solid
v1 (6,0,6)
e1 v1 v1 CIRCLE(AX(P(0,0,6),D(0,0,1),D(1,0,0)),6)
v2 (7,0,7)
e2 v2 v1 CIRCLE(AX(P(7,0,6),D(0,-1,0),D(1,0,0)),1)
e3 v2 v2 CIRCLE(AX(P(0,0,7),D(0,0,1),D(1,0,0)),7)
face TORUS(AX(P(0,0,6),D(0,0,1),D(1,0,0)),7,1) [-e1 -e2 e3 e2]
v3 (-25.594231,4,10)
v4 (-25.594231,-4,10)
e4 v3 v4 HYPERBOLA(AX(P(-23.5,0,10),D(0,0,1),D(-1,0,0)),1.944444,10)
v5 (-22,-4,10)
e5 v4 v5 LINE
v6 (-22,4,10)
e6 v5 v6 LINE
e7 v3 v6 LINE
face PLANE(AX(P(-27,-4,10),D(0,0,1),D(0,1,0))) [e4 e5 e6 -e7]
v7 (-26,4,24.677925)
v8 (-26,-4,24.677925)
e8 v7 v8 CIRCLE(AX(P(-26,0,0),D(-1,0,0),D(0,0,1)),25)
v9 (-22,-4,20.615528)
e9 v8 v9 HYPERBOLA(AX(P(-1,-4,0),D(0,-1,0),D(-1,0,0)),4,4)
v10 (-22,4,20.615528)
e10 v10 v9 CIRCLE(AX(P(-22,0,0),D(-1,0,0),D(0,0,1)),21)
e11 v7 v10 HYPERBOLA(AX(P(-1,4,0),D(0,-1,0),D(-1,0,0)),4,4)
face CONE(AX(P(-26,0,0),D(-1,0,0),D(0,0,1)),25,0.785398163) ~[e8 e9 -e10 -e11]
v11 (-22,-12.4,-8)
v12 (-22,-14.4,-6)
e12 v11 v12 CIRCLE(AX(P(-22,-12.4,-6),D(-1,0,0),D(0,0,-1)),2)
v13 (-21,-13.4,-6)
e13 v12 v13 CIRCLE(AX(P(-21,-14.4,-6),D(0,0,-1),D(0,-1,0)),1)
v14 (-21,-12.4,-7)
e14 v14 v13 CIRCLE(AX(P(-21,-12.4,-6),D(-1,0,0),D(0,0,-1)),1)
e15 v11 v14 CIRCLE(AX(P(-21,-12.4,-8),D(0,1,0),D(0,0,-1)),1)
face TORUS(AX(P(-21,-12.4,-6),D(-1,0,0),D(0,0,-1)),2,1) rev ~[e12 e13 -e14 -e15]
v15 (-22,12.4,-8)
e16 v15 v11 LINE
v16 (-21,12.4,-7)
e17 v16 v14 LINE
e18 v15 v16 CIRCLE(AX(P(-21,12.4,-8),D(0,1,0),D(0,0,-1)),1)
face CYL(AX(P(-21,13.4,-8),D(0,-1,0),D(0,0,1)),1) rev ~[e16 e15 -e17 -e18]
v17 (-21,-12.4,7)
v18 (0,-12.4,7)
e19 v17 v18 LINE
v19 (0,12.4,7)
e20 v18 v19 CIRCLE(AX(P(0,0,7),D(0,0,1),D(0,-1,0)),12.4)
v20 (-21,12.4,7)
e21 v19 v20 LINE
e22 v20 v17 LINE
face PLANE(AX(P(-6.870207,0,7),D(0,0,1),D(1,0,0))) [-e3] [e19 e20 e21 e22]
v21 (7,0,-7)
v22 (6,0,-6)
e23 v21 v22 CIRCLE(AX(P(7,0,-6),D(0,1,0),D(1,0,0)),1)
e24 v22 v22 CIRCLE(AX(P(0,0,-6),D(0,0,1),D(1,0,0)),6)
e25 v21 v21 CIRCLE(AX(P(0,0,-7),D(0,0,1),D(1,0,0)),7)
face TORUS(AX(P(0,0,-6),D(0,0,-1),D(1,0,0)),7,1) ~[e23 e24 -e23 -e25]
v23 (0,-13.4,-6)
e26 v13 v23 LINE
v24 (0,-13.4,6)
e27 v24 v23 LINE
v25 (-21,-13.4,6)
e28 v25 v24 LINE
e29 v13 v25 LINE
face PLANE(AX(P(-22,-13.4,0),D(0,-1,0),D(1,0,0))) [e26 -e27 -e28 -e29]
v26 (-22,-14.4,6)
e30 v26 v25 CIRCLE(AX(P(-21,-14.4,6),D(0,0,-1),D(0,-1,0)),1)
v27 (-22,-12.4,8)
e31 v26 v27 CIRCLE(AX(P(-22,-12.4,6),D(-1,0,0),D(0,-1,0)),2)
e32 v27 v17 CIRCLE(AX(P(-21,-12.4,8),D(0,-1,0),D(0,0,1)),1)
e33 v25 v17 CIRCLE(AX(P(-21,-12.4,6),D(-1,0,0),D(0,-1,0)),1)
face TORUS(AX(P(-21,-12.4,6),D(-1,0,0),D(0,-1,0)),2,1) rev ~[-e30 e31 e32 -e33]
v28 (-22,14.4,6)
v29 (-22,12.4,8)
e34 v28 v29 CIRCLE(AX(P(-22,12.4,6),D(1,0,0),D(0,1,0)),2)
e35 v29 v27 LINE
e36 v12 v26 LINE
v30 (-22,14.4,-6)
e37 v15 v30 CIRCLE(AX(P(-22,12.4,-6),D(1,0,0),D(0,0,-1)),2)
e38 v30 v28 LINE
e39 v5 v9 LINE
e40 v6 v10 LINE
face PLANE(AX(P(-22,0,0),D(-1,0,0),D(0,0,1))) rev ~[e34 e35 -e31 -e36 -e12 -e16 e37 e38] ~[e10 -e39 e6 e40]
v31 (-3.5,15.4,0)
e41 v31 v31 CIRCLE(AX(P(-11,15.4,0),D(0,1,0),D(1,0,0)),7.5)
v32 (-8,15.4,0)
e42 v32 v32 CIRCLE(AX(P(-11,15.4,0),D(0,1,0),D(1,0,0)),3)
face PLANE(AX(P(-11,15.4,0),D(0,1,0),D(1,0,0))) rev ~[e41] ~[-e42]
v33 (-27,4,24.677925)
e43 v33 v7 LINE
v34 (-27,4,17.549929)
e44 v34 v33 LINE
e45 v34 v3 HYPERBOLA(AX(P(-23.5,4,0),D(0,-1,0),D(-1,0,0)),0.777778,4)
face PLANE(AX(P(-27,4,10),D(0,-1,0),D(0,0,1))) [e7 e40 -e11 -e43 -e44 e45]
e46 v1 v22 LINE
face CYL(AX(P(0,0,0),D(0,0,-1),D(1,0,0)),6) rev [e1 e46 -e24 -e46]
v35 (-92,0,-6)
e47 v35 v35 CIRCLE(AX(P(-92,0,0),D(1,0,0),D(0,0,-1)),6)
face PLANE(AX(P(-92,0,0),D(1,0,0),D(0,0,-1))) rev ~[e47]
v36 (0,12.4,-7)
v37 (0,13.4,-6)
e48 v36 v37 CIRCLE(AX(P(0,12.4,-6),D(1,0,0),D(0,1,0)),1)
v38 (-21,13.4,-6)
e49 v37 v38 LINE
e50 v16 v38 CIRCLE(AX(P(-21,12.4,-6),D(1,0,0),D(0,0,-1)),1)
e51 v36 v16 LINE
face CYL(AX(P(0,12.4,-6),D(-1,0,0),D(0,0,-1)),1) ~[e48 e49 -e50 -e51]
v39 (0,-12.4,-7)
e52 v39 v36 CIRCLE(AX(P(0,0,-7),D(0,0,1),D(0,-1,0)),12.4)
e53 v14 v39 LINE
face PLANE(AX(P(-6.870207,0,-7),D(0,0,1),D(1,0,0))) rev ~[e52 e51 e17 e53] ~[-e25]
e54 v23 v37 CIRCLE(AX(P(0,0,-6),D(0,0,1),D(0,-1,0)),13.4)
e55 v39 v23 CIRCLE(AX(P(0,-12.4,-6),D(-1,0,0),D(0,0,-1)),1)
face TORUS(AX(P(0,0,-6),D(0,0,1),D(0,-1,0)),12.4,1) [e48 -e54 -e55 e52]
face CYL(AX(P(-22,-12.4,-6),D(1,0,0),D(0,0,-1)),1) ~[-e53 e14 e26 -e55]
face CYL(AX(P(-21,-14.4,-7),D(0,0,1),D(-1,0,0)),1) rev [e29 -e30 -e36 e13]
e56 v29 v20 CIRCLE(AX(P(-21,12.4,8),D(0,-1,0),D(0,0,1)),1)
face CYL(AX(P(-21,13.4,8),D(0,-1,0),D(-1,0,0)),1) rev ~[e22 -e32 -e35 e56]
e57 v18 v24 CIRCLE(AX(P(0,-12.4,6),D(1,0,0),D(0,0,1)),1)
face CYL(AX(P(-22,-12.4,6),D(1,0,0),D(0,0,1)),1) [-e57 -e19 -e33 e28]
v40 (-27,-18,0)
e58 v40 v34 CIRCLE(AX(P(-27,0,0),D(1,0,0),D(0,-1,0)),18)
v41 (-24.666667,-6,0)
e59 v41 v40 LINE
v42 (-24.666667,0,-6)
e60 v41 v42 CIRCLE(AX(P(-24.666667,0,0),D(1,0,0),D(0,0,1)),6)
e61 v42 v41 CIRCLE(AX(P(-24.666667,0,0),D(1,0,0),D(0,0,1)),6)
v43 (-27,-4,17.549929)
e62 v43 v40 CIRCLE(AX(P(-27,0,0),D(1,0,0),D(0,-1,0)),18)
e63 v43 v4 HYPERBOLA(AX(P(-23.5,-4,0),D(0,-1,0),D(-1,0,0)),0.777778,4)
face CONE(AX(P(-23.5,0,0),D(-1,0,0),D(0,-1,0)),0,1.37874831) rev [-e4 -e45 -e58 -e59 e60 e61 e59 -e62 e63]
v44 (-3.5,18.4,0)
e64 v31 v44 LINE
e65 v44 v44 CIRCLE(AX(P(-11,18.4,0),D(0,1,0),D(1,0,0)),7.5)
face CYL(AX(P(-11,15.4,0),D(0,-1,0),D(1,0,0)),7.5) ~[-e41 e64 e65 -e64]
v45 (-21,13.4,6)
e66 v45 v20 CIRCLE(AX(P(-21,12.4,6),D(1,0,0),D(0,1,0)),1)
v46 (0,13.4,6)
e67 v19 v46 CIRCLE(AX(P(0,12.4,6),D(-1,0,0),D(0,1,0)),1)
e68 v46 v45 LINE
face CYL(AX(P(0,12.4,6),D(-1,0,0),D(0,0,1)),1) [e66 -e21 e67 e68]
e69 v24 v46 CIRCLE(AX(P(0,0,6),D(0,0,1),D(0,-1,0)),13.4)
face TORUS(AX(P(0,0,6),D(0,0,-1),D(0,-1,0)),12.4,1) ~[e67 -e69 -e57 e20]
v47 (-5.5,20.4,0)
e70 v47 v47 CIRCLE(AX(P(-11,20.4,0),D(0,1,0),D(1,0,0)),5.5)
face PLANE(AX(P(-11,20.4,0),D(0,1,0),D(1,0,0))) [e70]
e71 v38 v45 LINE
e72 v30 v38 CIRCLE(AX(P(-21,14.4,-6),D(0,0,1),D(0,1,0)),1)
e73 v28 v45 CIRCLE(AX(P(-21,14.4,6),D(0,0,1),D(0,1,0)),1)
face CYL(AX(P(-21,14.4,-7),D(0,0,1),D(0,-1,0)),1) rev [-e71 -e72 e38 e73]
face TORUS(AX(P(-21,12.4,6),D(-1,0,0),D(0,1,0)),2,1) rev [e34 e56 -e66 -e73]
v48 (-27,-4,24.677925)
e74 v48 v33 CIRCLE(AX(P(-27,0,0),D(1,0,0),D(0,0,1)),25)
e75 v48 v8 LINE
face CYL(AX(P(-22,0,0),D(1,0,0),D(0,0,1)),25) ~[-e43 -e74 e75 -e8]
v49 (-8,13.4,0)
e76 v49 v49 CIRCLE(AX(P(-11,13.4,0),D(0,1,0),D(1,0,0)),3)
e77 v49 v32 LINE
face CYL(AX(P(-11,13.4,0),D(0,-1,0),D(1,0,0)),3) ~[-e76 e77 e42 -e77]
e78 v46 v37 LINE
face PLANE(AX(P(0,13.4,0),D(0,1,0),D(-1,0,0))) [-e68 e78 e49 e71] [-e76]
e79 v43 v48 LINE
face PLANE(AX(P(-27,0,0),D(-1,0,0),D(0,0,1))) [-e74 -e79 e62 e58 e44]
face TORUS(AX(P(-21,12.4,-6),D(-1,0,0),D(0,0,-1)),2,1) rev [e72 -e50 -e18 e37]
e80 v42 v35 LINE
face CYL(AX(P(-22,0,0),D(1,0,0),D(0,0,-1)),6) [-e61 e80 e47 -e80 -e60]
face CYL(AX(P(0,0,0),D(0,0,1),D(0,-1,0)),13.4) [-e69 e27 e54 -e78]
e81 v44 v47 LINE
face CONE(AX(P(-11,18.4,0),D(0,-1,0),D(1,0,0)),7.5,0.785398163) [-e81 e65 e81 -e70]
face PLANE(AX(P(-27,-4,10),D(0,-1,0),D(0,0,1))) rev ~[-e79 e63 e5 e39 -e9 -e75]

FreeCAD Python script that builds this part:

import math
import FreeCAD as App
import Part
import Sketcher


def edges_at(feature, points):
    """Names of the edges that pass closest to the given points."""
    edges = feature.Shape.Edges
    near = lambda p: min(range(len(edges)), key=lambda i: edges[i].distToShape(Part.Vertex(*p))[0])
    return sorted({f"Edge{near(p) + 1}" for p in points})


def add_polygon(sketch, points):
    """Adds a closed chain of lines whose ends are joined by coincident constraints."""
    first, n = sketch.GeometryCount, len(points)
    for a, b in zip(points, points[1:] + points[:1]):
        sketch.addGeometry(Part.LineSegment(App.Vector(*a, 0), App.Vector(*b, 0)), False)
    for i in range(n):
        sketch.addConstraint(Sketcher.Constraint("Coincident", first + i, 2, first + (i + 1) % n, 1))

doc = App.newDocument("Part")
params = doc.addObject("Spreadsheet::Sheet", "Params")
for row, (alias, value) in enumerate([
    ("sketch1_diameter", "12 mm"),
    ("sketch1_radius", "13.4 mm"),
    ("sketch1_width", "22 mm"),
    ("pad1_length", "14 mm"),
    ("sketch2_diameter", "50 mm"),
    ("pad2_length", "5 mm"),
    ("sketch3_height", "18 mm"),
    ("sketch3_width", "3.5 mm"),
    ("groove_angle", "360 deg"),
    ("chamfer_size", "4 mm"),
    ("sketch4_diameter", "12 mm"),
    ("pad3_length", "70 mm"),
    ("sketch5_diameter", "6 mm"),
    ("pad4_length", "2 mm"),
    ("sketch6_diameter", "15 mm"),
    ("pad5_length", "5 mm"),
    ("chamfer2_size", "2 mm"),
    ("sketch7_width", "8 mm"),
    ("sketch7_height", "30 mm"),
    ("fillet_radius", "1 mm"),
], start=1):
    params.set(f"A{row}", alias)
    params.set(f"B{row}", "=" + value)
    params.setAlias(f"B{row}", alias)

body = doc.addObject("PartDesign::Body", "Body")

# Sketch on XY plane
sketch1 = body.newObject("Sketcher::SketchObject", "Sketch")
sketch1.AttachmentSupport = (doc.getObject("XY_Plane"), [""])
sketch1.MapMode = "FlatFace"
sketch1.addGeometry(Part.LineSegment(App.Vector(0, 13, 0), App.Vector(-22, 13, 0)), False)
sketch1.addGeometry(Part.LineSegment(App.Vector(-22, 13, 0), App.Vector(-22, -13, 0)), False)
sketch1.addGeometry(Part.LineSegment(App.Vector(-22, -13, 0), App.Vector(0, -13, 0)), False)
sketch1.addGeometry(Part.ArcOfCircle(Part.Circle(App.Vector(0, 0, 0), App.Vector(0, 0, 1), 13), math.radians(-90), math.radians(90)), False)
sketch1.addGeometry(Part.Circle(App.Vector(0, 0, 0), App.Vector(0, 0, 1), 6), False)
sketch1.addConstraint(Sketcher.Constraint("Coincident", 0, 2, 1, 1))
sketch1.addConstraint(Sketcher.Constraint("Coincident", 1, 2, 2, 1))
sketch1.addConstraint(Sketcher.Constraint("Tangent", 2, 2, 3, 1))
sketch1.addConstraint(Sketcher.Constraint("Tangent", 3, 2, 0, 1))
sketch1.addConstraint(Sketcher.Constraint("Horizontal", 0))
sketch1.addConstraint(Sketcher.Constraint("Vertical", 1))
sketch1.addConstraint(Sketcher.Constraint("Horizontal", 2))
sketch1.addConstraint(Sketcher.Constraint("Coincident", 3, 3, -1, 1))
sketch1.addConstraint(Sketcher.Constraint("Coincident", 4, 3, -1, 1))
sketch1.addConstraint(Sketcher.Constraint("Diameter", 4, 12.0))
sketch1.addConstraint(Sketcher.Constraint("Radius", 3, 13.4))
sketch1.addConstraint(Sketcher.Constraint("DistanceX", 0, 2, 0, 1, 22.0))
sketch1.setExpression("Constraints[9]", "Params.sketch1_diameter")
sketch1.setExpression("Constraints[10]", "Params.sketch1_radius")
sketch1.setExpression("Constraints[11]", "Params.sketch1_width")
pad1 = body.newObject("PartDesign::Pad", "Pad")
pad1.Profile = sketch1
pad1.setExpression("Length", "Params.pad1_length")
pad1.Midplane = True

# Sketch on YZ plane
sketch2 = body.newObject("Sketcher::SketchObject", "Sketch001")
sketch2.AttachmentSupport = (doc.getObject("YZ_Plane"), [""])
sketch2.MapMode = "FlatFace"
sketch2.AttachmentOffset = App.Placement(App.Vector(0, 0, -22), App.Rotation())
sketch2.addGeometry(Part.Circle(App.Vector(0, 0, 0), App.Vector(0, 0, 1), 25), False)
sketch2.addConstraint(Sketcher.Constraint("Coincident", 0, 3, -1, 1))
sketch2.addConstraint(Sketcher.Constraint("Diameter", 0, 50.0))
sketch2.setExpression("Constraints[1]", "Params.sketch2_diameter")
pad2 = body.newObject("PartDesign::Pad", "Pad001")
pad2.Profile = sketch2
pad2.setExpression("Length", "Params.pad2_length")
pad2.Reversed = True

# Sketch on XY plane
sketch3 = body.newObject("Sketcher::SketchObject", "Sketch002")
sketch3.AttachmentSupport = (doc.getObject("XY_Plane"), [""])
sketch3.MapMode = "FlatFace"
add_polygon(sketch3, [(-23.5, 0), (-27, 0), (-27, -18)])  # lines 0-2
sketch3.addConstraint(Sketcher.Constraint("Horizontal", 0))
sketch3.addConstraint(Sketcher.Constraint("Vertical", 1))
sketch3.addConstraint(Sketcher.Constraint("PointOnObject", 0, 2, -1))
sketch3.addConstraint(Sketcher.Constraint("DistanceY", 1, 2, 1, 1, 18.0))
sketch3.addConstraint(Sketcher.Constraint("DistanceX", 0, 2, 0, 1, 3.5))
sketch3.addConstraint(Sketcher.Constraint("DistanceX", 0, 2, -1, 1, 27.0))
sketch3.setExpression("Constraints[6]", "Params.sketch3_height")
sketch3.setExpression("Constraints[7]", "Params.sketch3_width")
groove = body.newObject("PartDesign::Groove", "Groove")
groove.Profile = sketch3
groove.ReferenceAxis = (sketch3, ["H_Axis"])
groove.setExpression("Angle", "Params.groove_angle")
doc.recompute()

chamfer = body.newObject("PartDesign::Chamfer", "Chamfer")
chamfer.Base = (groove, edges_at(groove, [(-22, 0, -25)]))
chamfer.setExpression("Size", "Params.chamfer_size")

# Sketch on YZ plane
sketch4 = body.newObject("Sketcher::SketchObject", "Sketch003")
sketch4.AttachmentSupport = (doc.getObject("YZ_Plane"), [""])
sketch4.MapMode = "FlatFace"
sketch4.AttachmentOffset = App.Placement(App.Vector(0, 0, -22), App.Rotation())
sketch4.addGeometry(Part.Circle(App.Vector(0, 0, 0), App.Vector(0, 0, 1), 6), False)
sketch4.addConstraint(Sketcher.Constraint("Coincident", 0, 3, -1, 1))
sketch4.addConstraint(Sketcher.Constraint("Diameter", 0, 12.0))
sketch4.setExpression("Constraints[1]", "Params.sketch4_diameter")
pad3 = body.newObject("PartDesign::Pad", "Pad002")
pad3.Profile = sketch4
pad3.setExpression("Length", "Params.pad3_length")
pad3.Reversed = True

# Sketch on XZ plane
sketch5 = body.newObject("Sketcher::SketchObject", "Sketch004")
sketch5.AttachmentSupport = (doc.getObject("XZ_Plane"), [""])
sketch5.MapMode = "FlatFace"
sketch5.AttachmentOffset = App.Placement(App.Vector(0, 0, -13.4), App.Rotation())
sketch5.addGeometry(Part.Circle(App.Vector(-11, 0, 0), App.Vector(0, 0, 1), 3), False)
sketch5.addConstraint(Sketcher.Constraint("PointOnObject", 0, 3, -1))
sketch5.addConstraint(Sketcher.Constraint("Diameter", 0, 6.0))
sketch5.addConstraint(Sketcher.Constraint("DistanceX", 0, 3, -1, 1, 11.0))
sketch5.setExpression("Constraints[1]", "Params.sketch5_diameter")
pad4 = body.newObject("PartDesign::Pad", "Pad003")
pad4.Profile = sketch5
pad4.setExpression("Length", "Params.pad4_length")
pad4.Reversed = True

# Sketch on XZ plane
sketch6 = body.newObject("Sketcher::SketchObject", "Sketch005")
sketch6.AttachmentSupport = (doc.getObject("XZ_Plane"), [""])
sketch6.MapMode = "FlatFace"
sketch6.AttachmentOffset = App.Placement(App.Vector(0, 0, -15.4), App.Rotation())
sketch6.addGeometry(Part.Circle(App.Vector(-11, 0, 0), App.Vector(0, 0, 1), 8), False)
sketch6.addConstraint(Sketcher.Constraint("PointOnObject", 0, 3, -1))
sketch6.addConstraint(Sketcher.Constraint("Diameter", 0, 15.0))
sketch6.addConstraint(Sketcher.Constraint("DistanceX", 0, 3, -1, 1, 11.0))
sketch6.setExpression("Constraints[1]", "Params.sketch6_diameter")
pad5 = body.newObject("PartDesign::Pad", "Pad004")
pad5.Profile = sketch6
pad5.setExpression("Length", "Params.pad5_length")
pad5.Reversed = True
doc.recompute()

chamfer2 = body.newObject("PartDesign::Chamfer", "Chamfer001")
chamfer2.Base = (pad5, edges_at(pad5, [(-18.5, 20.4, 0)]))
chamfer2.setExpression("Size", "Params.chamfer2_size")

# Sketch on YZ plane
sketch7 = body.newObject("Sketcher::SketchObject", "Sketch006")
sketch7.AttachmentSupport = (doc.getObject("YZ_Plane"), [""])
sketch7.MapMode = "FlatFace"
sketch7.AttachmentOffset = App.Placement(App.Vector(0, 0, -27), App.Rotation())
add_polygon(sketch7, [(4, 10), (-4, 10), (-4, 40), (4, 40)])  # lines 0-3
sketch7.addConstraint(Sketcher.Constraint("Horizontal", 0))
sketch7.addConstraint(Sketcher.Constraint("Vertical", 1))
sketch7.addConstraint(Sketcher.Constraint("Horizontal", 2))
sketch7.addConstraint(Sketcher.Constraint("Vertical", 3))
sketch7.addConstraint(Sketcher.Constraint("DistanceX", 0, 2, 0, 1, 8.0))
sketch7.addConstraint(Sketcher.Constraint("DistanceY", 1, 1, 1, 2, 30.0))
sketch7.addConstraint(Sketcher.Constraint("DistanceX", 0, 2, -1, 1, 4.0))
sketch7.addConstraint(Sketcher.Constraint("DistanceY", -1, 1, 0, 2, 10.0))
sketch7.setExpression("Constraints[8]", "Params.sketch7_width")
sketch7.setExpression("Constraints[9]", "Params.sketch7_height")
pocket1 = body.newObject("PartDesign::Pocket", "Pocket")
pocket1.Profile = sketch7
pocket1.Type = "ThroughAll"
pocket1.Midplane = True
doc.recompute()

fillet = body.newObject("PartDesign::Fillet", "Fillet")
fillet.Base = (pocket1, edges_at(pocket1, [
    (-6, 0, -7),
    (-6, 0, 7),
    (-22, 0, 7),
    (-11, -13.4, 7),
    (13.4, 0, 7),
    (-11, -13.4, -7),
    (-22, 0, -7),
    (-11, 13.4, -7),
    (13.4, 0, -7),
    (-22, -13.4, 0),
    (-22, 13.4, 0),
    (-11, 13.4, 7),
]))
fillet.setExpression("Radius", "Params.fillet_radius")

doc.recompute()
